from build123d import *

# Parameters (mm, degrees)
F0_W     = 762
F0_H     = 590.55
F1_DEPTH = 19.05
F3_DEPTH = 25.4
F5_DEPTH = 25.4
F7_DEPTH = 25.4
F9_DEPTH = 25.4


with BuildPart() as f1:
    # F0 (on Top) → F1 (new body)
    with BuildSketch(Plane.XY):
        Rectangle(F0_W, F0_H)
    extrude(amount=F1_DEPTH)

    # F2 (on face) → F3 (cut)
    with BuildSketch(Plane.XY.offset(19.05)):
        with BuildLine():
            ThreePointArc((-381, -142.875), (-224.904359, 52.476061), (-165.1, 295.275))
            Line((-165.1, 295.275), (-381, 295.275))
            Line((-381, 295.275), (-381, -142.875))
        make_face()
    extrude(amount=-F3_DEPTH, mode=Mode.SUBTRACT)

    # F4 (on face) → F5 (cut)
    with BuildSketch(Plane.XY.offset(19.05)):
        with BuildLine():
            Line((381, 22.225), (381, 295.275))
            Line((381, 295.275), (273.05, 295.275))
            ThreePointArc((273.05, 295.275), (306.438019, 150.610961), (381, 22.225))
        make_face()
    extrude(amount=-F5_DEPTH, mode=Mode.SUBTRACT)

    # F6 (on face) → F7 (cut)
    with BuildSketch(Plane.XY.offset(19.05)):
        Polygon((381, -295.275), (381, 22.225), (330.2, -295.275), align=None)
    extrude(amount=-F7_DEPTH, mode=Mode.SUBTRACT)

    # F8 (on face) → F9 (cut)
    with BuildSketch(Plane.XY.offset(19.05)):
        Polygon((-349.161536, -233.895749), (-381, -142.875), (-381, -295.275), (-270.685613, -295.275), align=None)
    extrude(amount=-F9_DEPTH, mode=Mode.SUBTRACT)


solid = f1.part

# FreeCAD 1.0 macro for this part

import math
import FreeCAD as App
import Part
import Sketcher
from FreeCAD import Vector
Q = App.Units.Quantity

doc = App.newDocument("Part")
params = doc.addObject("Spreadsheet::Sheet", "Params")
for row, (alias, value) in enumerate([
    ("sketch1_width", "30 in"),
    ("sketch1_height", "23.25 in"),
    ("pad1_length", "0.75 in"),
    ("sketch2_width", "8.5 in"),
    ("sketch2_height", "17.25 in"),
    ("pocket1_length", "1 in"),
    ("sketch3_width", "4.25 in"),
    ("sketch3_height", "10.75 in"),
    ("pocket2_length", "1 in"),
    ("sketch4_width", "2 in"),
    ("sketch4_height", "12.5 in"),
    ("pocket3_length", "1 in"),
    ("sketch5_height", "6 in"),
    ("pocket4_length", "1 in"),
], start=1):
    params.set(f"A{row}", alias)
    params.set(f"B{row}", "=" + value)
    params.setAlias(f"B{row}", alias)

body = doc.addObject("PartDesign::Body", "Body")

sketch1 = doc.addObject("Sketcher::SketchObject", "Sketch")
body.addObject(sketch1)
sketch1.AttachmentSupport = (doc.XY_Plane, [""])
sketch1.MapMode = "FlatFace"
sketch1.addGeometry([
    Part.LineSegment(Vector(-381, 295.275, 0), Vector(-381, -295.275, 0)),
    Part.LineSegment(Vector(-381, -295.275, 0), Vector(381, -295.275, 0)),
    Part.LineSegment(Vector(381, -295.275, 0), Vector(381, 295.275, 0)),
    Part.LineSegment(Vector(381, 295.275, 0), Vector(-381, 295.275, 0)),
], False)
sketch1.addConstraint([
    Sketcher.Constraint("Coincident", 0, 2, 1, 1),
    Sketcher.Constraint("Coincident", 1, 2, 2, 1),
    Sketcher.Constraint("Coincident", 2, 2, 3, 1),
    Sketcher.Constraint("Coincident", 3, 2, 0, 1),
    Sketcher.Constraint("Vertical", 0),
    Sketcher.Constraint("Horizontal", 1),
    Sketcher.Constraint("Vertical", 2),
    Sketcher.Constraint("Horizontal", 3),
    Sketcher.Constraint("Symmetric", 0, 2, 2, 2, -1, 1),
    Sketcher.Constraint("DistanceX", 1, 1, 1, 2, Q("30 in")),
    Sketcher.Constraint("DistanceY", 0, 2, 0, 1, Q("23.25 in")),
])
sketch1.setExpression("Constraints[9]", "Params.sketch1_width")
sketch1.setExpression("Constraints[10]", "Params.sketch1_height")
pad1 = doc.addObject("PartDesign::Pad", "Pad")
body.addObject(pad1)
pad1.Profile = sketch1
pad1.setExpression("Length", "Params.pad1_length")

sketch2 = doc.addObject("Sketcher::SketchObject", "Sketch001")
body.addObject(sketch2)
sketch2.AttachmentSupport = (doc.XY_Plane, [""])
sketch2.MapMode = "FlatFace"
sketch2.AttachmentOffset = App.Placement(Vector(0, 0, 0.75 * 25.4), App.Rotation())
sketch2.addGeometry([
    Part.ArcOfCircle(Part.Circle(Vector(-747.400865, 309.938107, 0), Vector(0, 0, 1), 582.485454), math.radians(-51.021401), math.radians(-1.442479)),
    Part.LineSegment(Vector(-165.1, 295.275, 0), Vector(-381, 295.275, 0)),
    Part.LineSegment(Vector(-381, 295.275, 0), Vector(-381, -142.875, 0)),
], False)
sketch2.addConstraint([
    Sketcher.Constraint("Coincident", 0, 2, 1, 1),
    Sketcher.Constraint("Coincident", 1, 2, 2, 1),
    Sketcher.Constraint("Coincident", 2, 2, 0, 1),
    Sketcher.Constraint("Horizontal", 1),
    Sketcher.Constraint("Vertical", 2),
    Sketcher.Constraint("DistanceX", 1, 2, 1, 1, Q("8.5 in")),
    Sketcher.Constraint("DistanceX", 1, 2, -1, 1, Q("15 in")),
    Sketcher.Constraint("DistanceY", 2, 2, 2, 1, Q("17.25 in")),
    Sketcher.Constraint("DistanceY", -1, 1, 1, 2, Q("11.625 in")),
    Sketcher.Constraint("Radius", 0, Q("582.485454 mm")),
])
sketch2.setExpression("Constraints[5]", "Params.sketch2_width")
sketch2.setExpression("Constraints[7]", "Params.sketch2_height")
pocket1 = doc.addObject("PartDesign::Pocket", "Pocket")
body.addObject(pocket1)
pocket1.Profile = sketch2
pocket1.setExpression("Length", "Params.pocket1_length")

sketch3 = doc.addObject("Sketcher::SketchObject", "Sketch002")
body.addObject(sketch3)
sketch3.AttachmentSupport = (doc.XY_Plane, [""])
sketch3.MapMode = "FlatFace"
sketch3.AttachmentOffset = App.Placement(Vector(0, 0, 0.75 * 25.4), App.Rotation())
sketch3.addGeometry([
    Part.LineSegment(Vector(381, 22.225, 0), Vector(381, 295.275, 0)),
    Part.LineSegment(Vector(381, 295.275, 0), Vector(273.05, 295.275, 0)),
    Part.ArcOfCircle(Part.Circle(Vector(769.422354, 333.651279, 0), Vector(0, 0, 1), 497.853646), math.radians(-175.579058), math.radians(-141.278328)),
], False)
sketch3.addConstraint([
    Sketcher.Constraint("Coincident", 0, 2, 1, 1),
    Sketcher.Constraint("Coincident", 1, 2, 2, 1),
    Sketcher.Constraint("Coincident", 2, 2, 0, 1),
    Sketcher.Constraint("Vertical", 0),
    Sketcher.Constraint("Horizontal", 1),
    Sketcher.Constraint("DistanceX", -1, 1, 0, 2, Q("15 in")),
    Sketcher.Constraint("DistanceX", 1, 2, 1, 1, Q("4.25 in")),
    Sketcher.Constraint("DistanceY", 0, 1, 0, 2, Q("10.75 in")),
    Sketcher.Constraint("DistanceY", -1, 1, 0, 2, Q("11.625 in")),
    Sketcher.Constraint("Radius", 2, Q("497.853646 mm")),
])
sketch3.setExpression("Constraints[6]", "Params.sketch3_width")
sketch3.setExpression("Constraints[7]", "Params.sketch3_height")
pocket2 = doc.addObject("PartDesign::Pocket", "Pocket001")
body.addObject(pocket2)
pocket2.Profile = sketch3
pocket2.setExpression("Length", "Params.pocket2_length")

sketch4 = doc.addObject("Sketcher::SketchObject", "Sketch003")
body.addObject(sketch4)
sketch4.AttachmentSupport = (doc.XY_Plane, [""])
sketch4.MapMode = "FlatFace"
sketch4.AttachmentOffset = App.Placement(Vector(0, 0, 0.75 * 25.4), App.Rotation())
sketch4.addGeometry([
    Part.LineSegment(Vector(381, -295.275, 0), Vector(381, 22.225, 0)),
    Part.LineSegment(Vector(381, 22.225, 0), Vector(330.2, -295.275, 0)),
    Part.LineSegment(Vector(330.2, -295.275, 0), Vector(381, -295.275, 0)),
], False)
sketch4.addConstraint([
    Sketcher.Constraint("Coincident", 0, 2, 1, 1),
    Sketcher.Constraint("Coincident", 1, 2, 2, 1),
    Sketcher.Constraint("Coincident", 2, 2, 0, 1),
    Sketcher.Constraint("Vertical", 0),
    Sketcher.Constraint("Horizontal", 2),
    Sketcher.Constraint("DistanceX", 2, 1, 2, 2, Q("2 in")),
    Sketcher.Constraint("DistanceY", 0, 1, 0, 2, Q("12.5 in")),
    Sketcher.Constraint("DistanceX", -1, 1, 0, 2, Q("15 in")),
    Sketcher.Constraint("DistanceY", -1, 1, 0, 2, Q("0.875 in")),
])
sketch4.setExpression("Constraints[5]", "Params.sketch4_width")
sketch4.setExpression("Constraints[6]", "Params.sketch4_height")
pocket3 = doc.addObject("PartDesign::Pocket", "Pocket002")
body.addObject(pocket3)
pocket3.Profile = sketch4
pocket3.setExpression("Length", "Params.pocket3_length")

sketch5 = doc.addObject("Sketcher::SketchObject", "Sketch004")
body.addObject(sketch5)
sketch5.AttachmentSupport = (doc.XY_Plane, [""])
sketch5.MapMode = "FlatFace"
sketch5.AttachmentOffset = App.Placement(Vector(0, 0, 0.75 * 25.4), App.Rotation())
sketch5.addGeometry([
    Part.LineSegment(Vector(-349.161536, -233.895749, 0), Vector(-381, -142.875, 0)),
    Part.LineSegment(Vector(-381, -142.875, 0), Vector(-381, -295.275, 0)),
    Part.LineSegment(Vector(-381, -295.275, 0), Vector(-270.685613, -295.275, 0)),
    Part.LineSegment(Vector(-270.685613, -295.275, 0), Vector(-349.161536, -233.895749, 0)),
], False)
sketch5.addConstraint([
    Sketcher.Constraint("Coincident", 0, 2, 1, 1),
    Sketcher.Constraint("Coincident", 1, 2, 2, 1),
    Sketcher.Constraint("Coincident", 2, 2, 3, 1),
    Sketcher.Constraint("Coincident", 3, 2, 0, 1),
    Sketcher.Constraint("Vertical", 1),
    Sketcher.Constraint("Horizontal", 2),
    Sketcher.Constraint("DistanceY", 1, 2, 1, 1, Q("6 in")),
    Sketcher.Constraint("DistanceX", 0, 2, -1, 1, Q("15 in")),
    Sketcher.Constraint("DistanceY", 0, 2, -1, 1, Q("5.625 in")),
    Sketcher.Constraint("DistanceX", 2, 1, 2, 2, Q("110.314387 mm")),
    Sketcher.Constraint("DistanceY", 3, 2, -1, 1, Q("233.895749 mm")),
    Sketcher.Constraint("Distance", 0, Q("96.428546 mm")),
])
sketch5.setExpression("Constraints[6]", "Params.sketch5_height")
pocket4 = doc.addObject("PartDesign::Pocket", "Pocket003")
body.addObject(pocket4)
pocket4.Profile = sketch5
pocket4.setExpression("Length", "Params.pocket4_length")

doc.recompute()
